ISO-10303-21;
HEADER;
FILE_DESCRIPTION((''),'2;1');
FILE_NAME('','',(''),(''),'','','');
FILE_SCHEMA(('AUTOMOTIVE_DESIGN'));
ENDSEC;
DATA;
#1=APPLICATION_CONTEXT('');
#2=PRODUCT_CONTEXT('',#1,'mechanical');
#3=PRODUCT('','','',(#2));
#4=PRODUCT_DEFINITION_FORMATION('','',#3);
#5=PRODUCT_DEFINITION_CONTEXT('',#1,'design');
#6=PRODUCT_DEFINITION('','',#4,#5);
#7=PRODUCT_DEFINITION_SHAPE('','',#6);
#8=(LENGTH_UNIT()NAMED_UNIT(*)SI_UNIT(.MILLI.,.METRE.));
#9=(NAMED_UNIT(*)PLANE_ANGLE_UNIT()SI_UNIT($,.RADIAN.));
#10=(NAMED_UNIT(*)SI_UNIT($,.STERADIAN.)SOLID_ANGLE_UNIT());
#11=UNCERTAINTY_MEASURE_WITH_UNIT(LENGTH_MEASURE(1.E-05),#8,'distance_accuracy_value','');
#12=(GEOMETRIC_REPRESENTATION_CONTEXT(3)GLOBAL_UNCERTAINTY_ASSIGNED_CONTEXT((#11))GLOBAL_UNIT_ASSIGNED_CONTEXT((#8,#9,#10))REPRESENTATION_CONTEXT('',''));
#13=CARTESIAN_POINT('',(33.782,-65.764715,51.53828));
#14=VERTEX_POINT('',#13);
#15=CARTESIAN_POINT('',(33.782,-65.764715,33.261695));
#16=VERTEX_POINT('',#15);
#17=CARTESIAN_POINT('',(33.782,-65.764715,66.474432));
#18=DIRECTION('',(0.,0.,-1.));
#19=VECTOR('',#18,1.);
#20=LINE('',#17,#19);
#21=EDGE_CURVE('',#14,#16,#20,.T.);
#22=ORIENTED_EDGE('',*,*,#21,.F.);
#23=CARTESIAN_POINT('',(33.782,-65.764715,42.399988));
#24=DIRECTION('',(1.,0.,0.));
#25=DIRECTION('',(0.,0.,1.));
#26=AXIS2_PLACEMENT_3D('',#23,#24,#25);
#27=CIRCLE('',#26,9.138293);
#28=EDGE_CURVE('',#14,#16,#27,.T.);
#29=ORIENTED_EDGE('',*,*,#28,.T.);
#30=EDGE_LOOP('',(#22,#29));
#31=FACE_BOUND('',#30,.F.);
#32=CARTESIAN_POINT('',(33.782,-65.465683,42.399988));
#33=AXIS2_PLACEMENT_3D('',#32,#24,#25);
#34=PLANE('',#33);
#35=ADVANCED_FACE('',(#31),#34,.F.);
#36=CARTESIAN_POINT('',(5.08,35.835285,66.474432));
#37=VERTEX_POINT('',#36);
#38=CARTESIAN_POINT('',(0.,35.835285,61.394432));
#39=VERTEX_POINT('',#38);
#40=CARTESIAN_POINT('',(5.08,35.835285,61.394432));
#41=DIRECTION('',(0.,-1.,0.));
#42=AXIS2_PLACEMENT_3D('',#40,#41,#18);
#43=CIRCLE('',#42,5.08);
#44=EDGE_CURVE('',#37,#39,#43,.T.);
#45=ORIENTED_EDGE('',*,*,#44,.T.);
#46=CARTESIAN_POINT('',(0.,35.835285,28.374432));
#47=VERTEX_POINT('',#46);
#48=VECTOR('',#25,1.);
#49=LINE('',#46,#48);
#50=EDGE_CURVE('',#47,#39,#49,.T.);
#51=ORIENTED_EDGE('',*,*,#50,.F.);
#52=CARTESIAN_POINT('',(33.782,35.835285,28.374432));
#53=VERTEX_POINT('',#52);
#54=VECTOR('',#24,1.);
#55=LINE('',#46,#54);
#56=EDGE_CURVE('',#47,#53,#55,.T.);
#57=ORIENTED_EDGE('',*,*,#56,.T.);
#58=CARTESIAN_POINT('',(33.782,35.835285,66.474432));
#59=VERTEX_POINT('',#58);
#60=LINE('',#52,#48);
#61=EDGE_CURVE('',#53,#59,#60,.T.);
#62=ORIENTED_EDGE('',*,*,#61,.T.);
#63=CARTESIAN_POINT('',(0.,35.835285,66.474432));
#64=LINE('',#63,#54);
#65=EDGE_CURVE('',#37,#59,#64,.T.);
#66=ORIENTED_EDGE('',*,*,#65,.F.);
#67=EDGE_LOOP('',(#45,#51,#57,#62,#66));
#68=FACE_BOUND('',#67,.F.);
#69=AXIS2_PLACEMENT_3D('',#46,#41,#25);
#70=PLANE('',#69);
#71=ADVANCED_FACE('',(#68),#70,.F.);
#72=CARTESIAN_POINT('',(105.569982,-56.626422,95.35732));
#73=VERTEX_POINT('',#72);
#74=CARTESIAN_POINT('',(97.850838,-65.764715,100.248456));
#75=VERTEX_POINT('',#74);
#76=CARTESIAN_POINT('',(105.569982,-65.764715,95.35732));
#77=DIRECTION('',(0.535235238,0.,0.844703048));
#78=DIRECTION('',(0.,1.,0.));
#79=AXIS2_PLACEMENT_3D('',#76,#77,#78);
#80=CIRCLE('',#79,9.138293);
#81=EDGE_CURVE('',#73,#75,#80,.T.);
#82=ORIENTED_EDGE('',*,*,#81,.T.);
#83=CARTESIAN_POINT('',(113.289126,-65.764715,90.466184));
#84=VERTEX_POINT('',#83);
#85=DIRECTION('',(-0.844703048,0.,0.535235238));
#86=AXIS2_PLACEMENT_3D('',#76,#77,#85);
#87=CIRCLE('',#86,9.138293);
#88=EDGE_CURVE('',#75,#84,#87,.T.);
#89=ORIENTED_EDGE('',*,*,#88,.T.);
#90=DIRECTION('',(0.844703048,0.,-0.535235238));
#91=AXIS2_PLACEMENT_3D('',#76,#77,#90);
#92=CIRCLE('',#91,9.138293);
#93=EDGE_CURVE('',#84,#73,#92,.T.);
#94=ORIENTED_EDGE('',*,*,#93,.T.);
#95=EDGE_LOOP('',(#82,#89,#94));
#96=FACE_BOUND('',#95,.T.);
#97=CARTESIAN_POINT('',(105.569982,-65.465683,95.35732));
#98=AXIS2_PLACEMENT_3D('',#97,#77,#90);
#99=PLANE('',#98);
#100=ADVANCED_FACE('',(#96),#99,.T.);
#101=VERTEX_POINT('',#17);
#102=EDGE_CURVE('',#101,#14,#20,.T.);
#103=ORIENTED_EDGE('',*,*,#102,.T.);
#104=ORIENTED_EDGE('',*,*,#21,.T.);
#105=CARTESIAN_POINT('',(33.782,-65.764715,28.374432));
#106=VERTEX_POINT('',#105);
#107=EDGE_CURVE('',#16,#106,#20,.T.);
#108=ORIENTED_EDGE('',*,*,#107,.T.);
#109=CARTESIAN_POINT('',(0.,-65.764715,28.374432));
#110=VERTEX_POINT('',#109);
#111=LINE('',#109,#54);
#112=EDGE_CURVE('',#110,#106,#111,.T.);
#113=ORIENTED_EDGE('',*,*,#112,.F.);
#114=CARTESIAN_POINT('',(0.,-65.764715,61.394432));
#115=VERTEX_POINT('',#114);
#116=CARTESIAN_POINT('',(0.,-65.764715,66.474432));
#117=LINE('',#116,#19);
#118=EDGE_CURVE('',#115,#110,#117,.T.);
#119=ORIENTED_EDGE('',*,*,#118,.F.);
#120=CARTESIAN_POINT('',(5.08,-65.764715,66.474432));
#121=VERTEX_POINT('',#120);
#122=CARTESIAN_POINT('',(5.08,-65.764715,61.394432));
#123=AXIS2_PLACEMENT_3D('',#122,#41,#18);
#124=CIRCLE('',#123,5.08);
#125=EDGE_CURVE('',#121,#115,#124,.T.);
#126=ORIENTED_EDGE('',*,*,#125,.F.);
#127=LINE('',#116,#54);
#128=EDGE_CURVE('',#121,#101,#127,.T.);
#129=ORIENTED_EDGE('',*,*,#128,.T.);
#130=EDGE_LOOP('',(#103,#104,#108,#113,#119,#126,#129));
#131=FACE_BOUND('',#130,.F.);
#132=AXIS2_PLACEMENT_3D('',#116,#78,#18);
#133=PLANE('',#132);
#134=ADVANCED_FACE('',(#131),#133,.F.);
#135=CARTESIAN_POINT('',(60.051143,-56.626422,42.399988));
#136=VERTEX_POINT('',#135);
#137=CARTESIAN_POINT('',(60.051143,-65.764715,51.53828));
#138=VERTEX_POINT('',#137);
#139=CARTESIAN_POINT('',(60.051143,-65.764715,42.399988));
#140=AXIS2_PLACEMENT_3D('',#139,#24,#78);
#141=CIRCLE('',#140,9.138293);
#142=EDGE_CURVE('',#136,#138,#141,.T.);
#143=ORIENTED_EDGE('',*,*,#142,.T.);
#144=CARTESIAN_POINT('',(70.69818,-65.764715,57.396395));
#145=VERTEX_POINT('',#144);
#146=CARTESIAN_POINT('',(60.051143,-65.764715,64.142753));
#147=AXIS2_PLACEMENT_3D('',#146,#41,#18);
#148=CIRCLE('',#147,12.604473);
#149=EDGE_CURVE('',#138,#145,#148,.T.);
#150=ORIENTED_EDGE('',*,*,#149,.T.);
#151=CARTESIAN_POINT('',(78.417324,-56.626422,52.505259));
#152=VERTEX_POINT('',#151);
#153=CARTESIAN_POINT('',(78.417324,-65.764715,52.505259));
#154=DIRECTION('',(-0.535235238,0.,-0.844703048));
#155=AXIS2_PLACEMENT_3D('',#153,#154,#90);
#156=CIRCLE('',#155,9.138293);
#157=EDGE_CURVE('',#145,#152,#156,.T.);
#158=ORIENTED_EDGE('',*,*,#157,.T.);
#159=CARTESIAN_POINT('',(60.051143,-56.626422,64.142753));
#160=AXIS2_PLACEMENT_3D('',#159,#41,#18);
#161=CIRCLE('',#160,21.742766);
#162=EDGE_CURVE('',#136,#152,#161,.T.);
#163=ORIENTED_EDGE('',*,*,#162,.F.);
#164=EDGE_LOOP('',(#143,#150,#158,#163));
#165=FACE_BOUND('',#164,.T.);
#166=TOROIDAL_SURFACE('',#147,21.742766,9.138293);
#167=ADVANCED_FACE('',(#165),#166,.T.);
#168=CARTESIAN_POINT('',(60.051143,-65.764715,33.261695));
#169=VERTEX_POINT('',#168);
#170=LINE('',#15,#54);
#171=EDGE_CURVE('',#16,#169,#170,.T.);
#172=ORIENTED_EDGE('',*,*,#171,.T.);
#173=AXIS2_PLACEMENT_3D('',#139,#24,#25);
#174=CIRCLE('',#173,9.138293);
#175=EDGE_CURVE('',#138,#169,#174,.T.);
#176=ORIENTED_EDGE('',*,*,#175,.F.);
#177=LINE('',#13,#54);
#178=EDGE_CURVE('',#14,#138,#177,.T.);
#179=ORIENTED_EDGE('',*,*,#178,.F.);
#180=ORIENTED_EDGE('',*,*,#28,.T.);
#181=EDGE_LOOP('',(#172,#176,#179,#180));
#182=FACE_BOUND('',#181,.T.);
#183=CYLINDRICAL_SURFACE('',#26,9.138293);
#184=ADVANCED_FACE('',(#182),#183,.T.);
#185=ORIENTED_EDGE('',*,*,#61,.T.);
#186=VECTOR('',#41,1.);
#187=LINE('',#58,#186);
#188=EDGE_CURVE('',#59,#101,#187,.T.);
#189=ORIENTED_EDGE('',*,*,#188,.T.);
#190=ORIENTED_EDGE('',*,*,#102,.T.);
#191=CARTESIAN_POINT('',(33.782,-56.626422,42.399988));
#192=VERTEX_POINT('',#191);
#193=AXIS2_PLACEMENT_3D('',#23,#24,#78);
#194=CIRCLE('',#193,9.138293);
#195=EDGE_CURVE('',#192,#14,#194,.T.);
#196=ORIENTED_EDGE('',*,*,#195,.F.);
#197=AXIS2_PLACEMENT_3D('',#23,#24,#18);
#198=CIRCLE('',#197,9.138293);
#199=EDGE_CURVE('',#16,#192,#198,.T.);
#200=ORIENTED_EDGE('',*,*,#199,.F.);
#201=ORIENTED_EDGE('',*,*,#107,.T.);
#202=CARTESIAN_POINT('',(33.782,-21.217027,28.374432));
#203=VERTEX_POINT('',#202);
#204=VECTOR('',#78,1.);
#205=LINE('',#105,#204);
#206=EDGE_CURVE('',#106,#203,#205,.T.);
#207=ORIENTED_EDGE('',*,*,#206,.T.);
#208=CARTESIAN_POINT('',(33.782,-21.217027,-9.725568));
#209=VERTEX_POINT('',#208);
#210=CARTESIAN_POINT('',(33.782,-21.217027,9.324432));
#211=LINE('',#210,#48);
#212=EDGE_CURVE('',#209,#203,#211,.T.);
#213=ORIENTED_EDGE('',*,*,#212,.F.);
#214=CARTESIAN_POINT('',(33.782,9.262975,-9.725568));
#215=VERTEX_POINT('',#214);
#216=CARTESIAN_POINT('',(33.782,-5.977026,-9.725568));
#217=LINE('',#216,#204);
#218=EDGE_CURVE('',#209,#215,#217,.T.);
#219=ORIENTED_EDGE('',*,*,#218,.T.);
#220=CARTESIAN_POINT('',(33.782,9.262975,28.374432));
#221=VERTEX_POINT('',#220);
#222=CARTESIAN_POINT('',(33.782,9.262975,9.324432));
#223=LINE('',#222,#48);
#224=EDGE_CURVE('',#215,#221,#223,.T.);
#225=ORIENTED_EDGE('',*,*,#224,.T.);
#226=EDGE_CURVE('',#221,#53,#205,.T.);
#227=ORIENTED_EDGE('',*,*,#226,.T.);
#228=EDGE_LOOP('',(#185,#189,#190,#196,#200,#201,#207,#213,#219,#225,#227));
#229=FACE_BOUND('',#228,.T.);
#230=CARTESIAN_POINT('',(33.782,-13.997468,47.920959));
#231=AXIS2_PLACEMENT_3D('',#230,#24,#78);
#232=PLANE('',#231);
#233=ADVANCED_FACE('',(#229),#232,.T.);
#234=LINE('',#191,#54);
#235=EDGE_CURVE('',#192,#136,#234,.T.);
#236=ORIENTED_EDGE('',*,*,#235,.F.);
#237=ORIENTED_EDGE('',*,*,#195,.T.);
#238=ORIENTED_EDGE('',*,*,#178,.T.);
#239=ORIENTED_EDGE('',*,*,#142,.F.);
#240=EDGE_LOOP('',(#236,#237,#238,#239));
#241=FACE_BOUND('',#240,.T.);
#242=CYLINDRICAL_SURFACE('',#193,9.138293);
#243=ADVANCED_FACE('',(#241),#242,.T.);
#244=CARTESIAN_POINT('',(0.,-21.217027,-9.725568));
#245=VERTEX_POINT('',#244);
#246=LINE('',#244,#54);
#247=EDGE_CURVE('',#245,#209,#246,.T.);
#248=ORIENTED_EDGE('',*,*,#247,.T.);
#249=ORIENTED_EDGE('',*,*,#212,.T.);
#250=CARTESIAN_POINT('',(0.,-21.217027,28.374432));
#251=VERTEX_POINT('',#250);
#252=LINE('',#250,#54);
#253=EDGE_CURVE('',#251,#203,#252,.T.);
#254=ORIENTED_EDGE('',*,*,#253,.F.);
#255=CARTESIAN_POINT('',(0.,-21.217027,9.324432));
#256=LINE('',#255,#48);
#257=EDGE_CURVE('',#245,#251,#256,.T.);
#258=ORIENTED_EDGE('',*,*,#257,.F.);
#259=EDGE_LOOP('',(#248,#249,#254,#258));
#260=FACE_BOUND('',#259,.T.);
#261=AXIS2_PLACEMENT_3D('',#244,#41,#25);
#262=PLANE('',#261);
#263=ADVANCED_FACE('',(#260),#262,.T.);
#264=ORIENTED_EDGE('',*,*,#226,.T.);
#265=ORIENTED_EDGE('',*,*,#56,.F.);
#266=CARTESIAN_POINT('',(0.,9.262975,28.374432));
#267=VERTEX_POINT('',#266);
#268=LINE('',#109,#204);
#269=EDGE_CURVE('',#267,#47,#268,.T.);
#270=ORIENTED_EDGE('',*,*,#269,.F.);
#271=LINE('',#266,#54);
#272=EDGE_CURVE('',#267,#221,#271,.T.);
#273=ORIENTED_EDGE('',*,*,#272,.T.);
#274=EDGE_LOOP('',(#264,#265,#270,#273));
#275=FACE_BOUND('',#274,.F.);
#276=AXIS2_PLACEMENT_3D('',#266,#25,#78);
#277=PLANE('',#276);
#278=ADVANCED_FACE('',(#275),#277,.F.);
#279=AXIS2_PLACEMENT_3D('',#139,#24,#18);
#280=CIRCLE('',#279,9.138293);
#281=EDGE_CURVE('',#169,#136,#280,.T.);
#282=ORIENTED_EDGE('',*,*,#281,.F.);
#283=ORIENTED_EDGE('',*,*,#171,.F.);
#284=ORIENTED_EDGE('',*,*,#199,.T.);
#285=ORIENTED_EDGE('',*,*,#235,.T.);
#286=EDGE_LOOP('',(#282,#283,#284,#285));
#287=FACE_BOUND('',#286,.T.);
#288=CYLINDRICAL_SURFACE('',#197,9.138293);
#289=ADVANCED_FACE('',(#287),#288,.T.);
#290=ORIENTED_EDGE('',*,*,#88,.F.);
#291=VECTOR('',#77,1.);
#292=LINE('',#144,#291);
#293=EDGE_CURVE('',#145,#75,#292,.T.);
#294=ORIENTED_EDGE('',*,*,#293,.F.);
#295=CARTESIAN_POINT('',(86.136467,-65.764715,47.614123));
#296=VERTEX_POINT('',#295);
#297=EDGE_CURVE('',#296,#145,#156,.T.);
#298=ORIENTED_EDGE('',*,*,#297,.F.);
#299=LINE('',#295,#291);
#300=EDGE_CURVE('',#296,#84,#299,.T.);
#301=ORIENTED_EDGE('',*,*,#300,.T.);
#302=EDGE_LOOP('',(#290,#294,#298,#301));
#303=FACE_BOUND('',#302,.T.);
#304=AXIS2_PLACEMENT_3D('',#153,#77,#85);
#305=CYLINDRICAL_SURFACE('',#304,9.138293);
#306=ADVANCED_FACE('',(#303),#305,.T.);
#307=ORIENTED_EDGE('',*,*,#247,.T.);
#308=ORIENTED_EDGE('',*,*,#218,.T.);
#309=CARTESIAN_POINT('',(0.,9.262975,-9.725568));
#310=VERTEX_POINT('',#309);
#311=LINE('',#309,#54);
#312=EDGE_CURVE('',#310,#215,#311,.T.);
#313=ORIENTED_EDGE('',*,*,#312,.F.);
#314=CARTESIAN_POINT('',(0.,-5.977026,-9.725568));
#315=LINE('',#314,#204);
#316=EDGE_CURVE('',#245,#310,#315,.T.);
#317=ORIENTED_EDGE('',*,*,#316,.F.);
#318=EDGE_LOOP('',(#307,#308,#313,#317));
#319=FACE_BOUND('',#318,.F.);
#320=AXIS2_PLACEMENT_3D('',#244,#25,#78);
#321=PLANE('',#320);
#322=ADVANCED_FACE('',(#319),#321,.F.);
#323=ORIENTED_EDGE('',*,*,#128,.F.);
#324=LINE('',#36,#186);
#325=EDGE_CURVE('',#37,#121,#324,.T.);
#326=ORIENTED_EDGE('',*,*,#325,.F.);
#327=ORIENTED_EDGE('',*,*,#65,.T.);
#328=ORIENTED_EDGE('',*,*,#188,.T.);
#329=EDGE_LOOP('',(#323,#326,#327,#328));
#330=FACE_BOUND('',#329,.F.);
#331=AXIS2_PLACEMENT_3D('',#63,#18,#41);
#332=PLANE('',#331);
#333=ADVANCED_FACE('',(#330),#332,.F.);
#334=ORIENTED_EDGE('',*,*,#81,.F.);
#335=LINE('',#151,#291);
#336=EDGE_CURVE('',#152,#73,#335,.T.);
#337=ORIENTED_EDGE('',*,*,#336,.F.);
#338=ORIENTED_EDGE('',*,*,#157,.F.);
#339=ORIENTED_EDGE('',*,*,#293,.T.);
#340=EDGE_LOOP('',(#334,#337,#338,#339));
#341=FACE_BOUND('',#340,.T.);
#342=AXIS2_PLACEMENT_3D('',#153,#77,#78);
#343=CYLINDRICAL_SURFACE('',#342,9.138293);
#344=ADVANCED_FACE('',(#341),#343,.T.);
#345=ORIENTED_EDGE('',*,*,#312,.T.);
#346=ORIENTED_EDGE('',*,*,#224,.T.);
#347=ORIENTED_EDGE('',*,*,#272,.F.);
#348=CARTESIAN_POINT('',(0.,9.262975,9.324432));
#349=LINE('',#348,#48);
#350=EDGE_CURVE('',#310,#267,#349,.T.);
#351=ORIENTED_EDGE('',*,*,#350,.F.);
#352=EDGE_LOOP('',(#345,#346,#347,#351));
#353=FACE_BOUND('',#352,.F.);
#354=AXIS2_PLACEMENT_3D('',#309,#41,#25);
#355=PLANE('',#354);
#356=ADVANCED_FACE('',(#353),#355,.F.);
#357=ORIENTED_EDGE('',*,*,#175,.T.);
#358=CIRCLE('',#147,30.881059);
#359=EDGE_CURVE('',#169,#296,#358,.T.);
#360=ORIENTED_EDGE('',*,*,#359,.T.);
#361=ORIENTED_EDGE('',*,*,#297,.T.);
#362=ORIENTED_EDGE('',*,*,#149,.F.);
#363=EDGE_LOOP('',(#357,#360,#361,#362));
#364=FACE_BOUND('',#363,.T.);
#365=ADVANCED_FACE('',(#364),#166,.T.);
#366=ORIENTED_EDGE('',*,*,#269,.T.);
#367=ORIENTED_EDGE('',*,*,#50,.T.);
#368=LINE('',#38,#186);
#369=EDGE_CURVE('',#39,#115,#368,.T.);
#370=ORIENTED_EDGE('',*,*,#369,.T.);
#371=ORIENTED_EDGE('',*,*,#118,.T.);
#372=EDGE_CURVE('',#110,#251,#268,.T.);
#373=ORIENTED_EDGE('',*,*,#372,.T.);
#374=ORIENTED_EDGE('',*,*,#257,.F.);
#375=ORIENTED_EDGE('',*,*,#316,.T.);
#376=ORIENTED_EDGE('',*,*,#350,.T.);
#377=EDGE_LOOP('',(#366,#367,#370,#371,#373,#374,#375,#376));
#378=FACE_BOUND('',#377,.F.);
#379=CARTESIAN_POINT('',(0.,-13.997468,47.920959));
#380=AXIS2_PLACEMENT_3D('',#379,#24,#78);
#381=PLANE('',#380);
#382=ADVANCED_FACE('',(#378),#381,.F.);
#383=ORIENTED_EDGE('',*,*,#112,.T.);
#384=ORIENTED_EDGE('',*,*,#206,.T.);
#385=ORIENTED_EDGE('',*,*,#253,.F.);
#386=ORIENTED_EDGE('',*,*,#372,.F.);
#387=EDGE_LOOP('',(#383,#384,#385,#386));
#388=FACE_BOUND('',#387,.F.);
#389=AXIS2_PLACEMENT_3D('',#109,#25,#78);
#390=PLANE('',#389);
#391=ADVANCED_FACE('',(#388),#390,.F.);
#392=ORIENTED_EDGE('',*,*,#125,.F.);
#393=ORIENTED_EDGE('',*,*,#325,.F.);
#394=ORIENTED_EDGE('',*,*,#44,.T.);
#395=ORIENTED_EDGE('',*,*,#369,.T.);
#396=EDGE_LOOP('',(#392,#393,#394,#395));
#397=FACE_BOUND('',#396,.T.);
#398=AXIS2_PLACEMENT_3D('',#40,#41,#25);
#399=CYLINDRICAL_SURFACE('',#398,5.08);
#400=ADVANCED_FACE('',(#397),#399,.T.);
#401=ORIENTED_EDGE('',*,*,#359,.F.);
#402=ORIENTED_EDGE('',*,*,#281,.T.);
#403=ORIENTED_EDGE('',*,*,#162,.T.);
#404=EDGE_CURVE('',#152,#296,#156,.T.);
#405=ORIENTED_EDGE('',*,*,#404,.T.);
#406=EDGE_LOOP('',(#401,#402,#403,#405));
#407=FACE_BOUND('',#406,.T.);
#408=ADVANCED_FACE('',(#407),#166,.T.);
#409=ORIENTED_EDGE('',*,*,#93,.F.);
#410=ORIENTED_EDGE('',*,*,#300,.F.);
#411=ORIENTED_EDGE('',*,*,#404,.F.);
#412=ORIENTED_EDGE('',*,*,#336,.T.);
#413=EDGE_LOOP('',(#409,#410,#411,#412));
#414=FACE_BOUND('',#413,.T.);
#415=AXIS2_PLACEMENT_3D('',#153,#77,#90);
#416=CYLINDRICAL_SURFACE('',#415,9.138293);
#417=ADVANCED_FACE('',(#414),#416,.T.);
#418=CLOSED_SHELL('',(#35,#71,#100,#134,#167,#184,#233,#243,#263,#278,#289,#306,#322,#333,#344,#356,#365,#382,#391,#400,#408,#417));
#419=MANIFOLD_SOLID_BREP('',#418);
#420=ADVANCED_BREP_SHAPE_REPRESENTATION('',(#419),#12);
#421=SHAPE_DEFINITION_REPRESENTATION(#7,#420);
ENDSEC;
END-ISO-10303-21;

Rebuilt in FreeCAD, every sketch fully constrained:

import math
import FreeCAD as App
import Part
import Sketcher
from FreeCAD import Vector
Q = App.Units.Quantity


def edges_at(feature, points):
    """Names of the edges that pass closest to the given points."""
    edges = feature.Shape.Edges
    near = lambda p: min(range(len(edges)), key=lambda i: edges[i].distToShape(Part.Vertex(*p))[0])
    return sorted({f"Edge{near(p) + 1}" for p in points})


def add_polygon(sketch, points):
    """Adds a closed chain of lines whose ends are joined by coincident constraints."""
    first, n = sketch.GeometryCount, len(points)
    for a, b in zip(points, points[1:] + points[:1]):
        sketch.addGeometry(Part.LineSegment(App.Vector(*a, 0), App.Vector(*b, 0)), False)
    for i in range(n):
        sketch.addConstraint(Sketcher.Constraint("Coincident", first + i, 2, first + (i + 1) % n, 1))

doc = App.newDocument("Part")
body = doc.addObject("PartDesign::Body", "Body")

sketch1 = body.newObject("Sketcher::SketchObject", "Sketch")
sketch1.AttachmentSupport = (doc.getObject("YZ_Plane"), [""])
sketch1.MapMode = "FlatFace"
add_polygon(sketch1, [(35.835285, 66.474432), (-65.764715, 66.474432), (-65.764715, 28.374432), (-21.217027, 28.374432), (-21.217027, -9.725568), (9.262975, -9.725568), (9.262975, 28.374432), (35.835285, 28.374432)])
sketch1.addConstraint([
    Sketcher.Constraint("Horizontal", 0),
    Sketcher.Constraint("Vertical", 1),
    Sketcher.Constraint("Horizontal", 2),
    Sketcher.Constraint("Vertical", 3),
    Sketcher.Constraint("Horizontal", 4),
    Sketcher.Constraint("Vertical", 5),
    Sketcher.Constraint("Horizontal", 6),
    Sketcher.Constraint("Vertical", 7),
    Sketcher.Constraint("Horizontal", 2, 2, 5, 2),
    Sketcher.Constraint("Equal", 1, 3),
    Sketcher.Constraint("DistanceX", 0, 2, 0, 1, Q("4 in")),
    Sketcher.Constraint("DistanceX", 4, 1, 4, 2, Q("1.2000001 in")),
    Sketcher.Constraint("DistanceY", 1, 2, 1, 1, Q("1.5 in")),
    Sketcher.Constraint("DistanceX", 6, 1, 6, 2, 26.57231),
    Sketcher.Constraint("DistanceY", -1, 1, 0, 2, 66.474432),
    Sketcher.Constraint("DistanceX", 0, 2, -1, 1, 65.764715),
])
pad1 = body.newObject("PartDesign::Pad", "Pad")
pad1.Profile = sketch1
pad1.Length = Q("1.33 in")
doc.recompute()

fillet = body.newObject("PartDesign::Fillet", "Fillet")
fillet.Base = (pad1, edges_at(pad1, [(0, -14.965, 66.474)]))
fillet.Radius = Q("0.2 in")

sketch2 = body.newObject("Sketcher::SketchObject", "Sketch001")
sketch2.AttachmentSupport = (doc.getObject("YZ_Plane"), [""])
sketch2.MapMode = "FlatFace"
sketch2.AttachmentOffset = App.Placement(Vector(0, 0, 1.33 * 25.4), App.Rotation())
sketch2.addGeometry([
    Part.ArcOfCircle(Part.Circle(Vector(-65.764715, 42.399988, 0), Vector(0, 0, 1), 9.138293), math.radians(90), math.radians(270)),
    Part.ArcOfCircle(Part.Circle(Vector(-65.764715, 42.399988, 0), Vector(0, 0, 1), 9.138293), math.radians(-90), math.radians(0)),
    Part.ArcOfCircle(Part.Circle(Vector(-65.764715, 42.399988, 0), Vector(0, 0, 1), 9.138293), math.radians(0), math.radians(90)),
], False)
sketch2.addConstraint([
    Sketcher.Constraint("Tangent", 0, 2, 1, 1),
    Sketcher.Constraint("Tangent", 1, 2, 2, 1),
    Sketcher.Constraint("Tangent", 2, 2, 0, 1),
    Sketcher.Constraint("Horizontal", 2, 3, 1, 2),
    Sketcher.Constraint("Vertical", 2, 3, 0, 2),
    Sketcher.Constraint("Vertical", 0, 2, 2, 2),
    Sketcher.Constraint("Radius", 0, 9.138293),
    Sketcher.Constraint("DistanceX", 1, 2, -1, 1, 56.626422),
    Sketcher.Constraint("DistanceY", -1, 1, 2, 2, 51.53828),
])

sketch3 = body.newObject("Sketcher::SketchObject", "Sketch002")
sketch3.AttachmentSupport = (doc.getObject("XZ_Plane"), [""])
sketch3.MapMode = "FlatFace"
sketch3.AttachmentOffset = App.Placement(Vector(0, 0, 65.764715), App.Rotation())
sketch3.addGeometry([
    Part.LineSegment(Vector(33.782, 42.088464, 0), Vector(60.051143, 42.088464, 0)),
    Part.ArcOfCircle(Part.Circle(Vector(60.051143, 64.142753, 0), Vector(0, 0, 1), 22.054289), math.radians(-90), math.radians(-32.359866)),
    Part.LineSegment(Vector(78.680469, 52.338521, 0), Vector(105.833127, 95.190581, 0)),
], False)
sketch3.addConstraint([
    Sketcher.Constraint("Tangent", 0, 2, 1, 1),
    Sketcher.Constraint("Tangent", 1, 2, 2, 1),
    Sketcher.Constraint("Horizontal", 0),
    Sketcher.Constraint("DistanceX", -1, 1, 0, 1, Q("1.33 in")),
    Sketcher.Constraint("Radius", 1, 22.054289),
    Sketcher.Constraint("DistanceX", 0, 1, 0, 2, 26.269143),
    Sketcher.Constraint("DistanceX", -1, 1, 1, 2, 78.680469),
    Sketcher.Constraint("DistanceY", -1, 1, 1, 2, 52.338521),
    Sketcher.Constraint("DistanceY", -1, 1, 2, 2, 95.190581),
])
doc.recompute()

additivepipe = body.newObject("PartDesign::AdditivePipe", "AdditivePipe")
additivepipe.Profile = sketch2
additivepipe.Spine = (sketch3, ["Edge1", "Edge2", "Edge3"])

doc.recompute()
